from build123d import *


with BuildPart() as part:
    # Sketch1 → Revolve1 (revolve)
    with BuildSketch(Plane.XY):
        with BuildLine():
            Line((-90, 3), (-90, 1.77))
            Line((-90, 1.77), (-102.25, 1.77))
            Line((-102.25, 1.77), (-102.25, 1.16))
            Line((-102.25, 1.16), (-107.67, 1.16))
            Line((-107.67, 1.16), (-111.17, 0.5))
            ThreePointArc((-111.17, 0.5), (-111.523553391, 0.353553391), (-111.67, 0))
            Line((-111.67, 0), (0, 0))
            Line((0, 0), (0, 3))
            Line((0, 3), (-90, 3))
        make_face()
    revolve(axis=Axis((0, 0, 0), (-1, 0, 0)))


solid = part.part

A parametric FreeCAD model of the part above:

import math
import FreeCAD as App
import Part
import Sketcher
from FreeCAD import Vector

doc = App.newDocument("Part")
body = doc.addObject("PartDesign::Body", "Body")

# Sketch on XY plane
sketch1 = doc.addObject("Sketcher::SketchObject", "Sketch")
body.addObject(sketch1)
sketch1.AttachmentSupport = (doc.XY_Plane, [""])
sketch1.MapMode = "FlatFace"
sketch1.addGeometry([
    Part.LineSegment(Vector(-90, 3, 0), Vector(-90, 1.77, 0)),  # 0
    Part.LineSegment(Vector(-90, 1.77, 0), Vector(-102.25, 1.77, 0)),  # 1
    Part.LineSegment(Vector(-102.25, 1.77, 0), Vector(-102.25, 1.16, 0)),  # 2
    Part.LineSegment(Vector(-102.25, 1.16, 0), Vector(-107.67, 1.16, 0)),  # 3
    Part.LineSegment(Vector(-107.67, 1.16, 0), Vector(-111.17, 0.5, 0)),  # 4
    Part.ArcOfCircle(Part.Circle(Vector(-111.17, 0, 0), Vector(0, 0, 1), 0.5), math.radians(90), math.radians(180)),  # 5
    Part.LineSegment(Vector(-111.67, 0, 0), Vector(0, 0, 0)),  # 6
    Part.LineSegment(Vector(0, 0, 0), Vector(0, 3, 0)),  # 7
    Part.LineSegment(Vector(0, 3, 0), Vector(-90, 3, 0)),  # 8
], False)
sketch1.addConstraint([
    Sketcher.Constraint("Coincident", 0, 2, 1, 1),
    Sketcher.Constraint("Coincident", 1, 2, 2, 1),
    Sketcher.Constraint("Coincident", 2, 2, 3, 1),
    Sketcher.Constraint("Coincident", 3, 2, 4, 1),
    Sketcher.Constraint("Coincident", 4, 2, 5, 1),
    Sketcher.Constraint("Coincident", 5, 2, 6, 1),
    Sketcher.Constraint("Coincident", 6, 2, 7, 1),
    Sketcher.Constraint("Coincident", 7, 2, 8, 1),
    Sketcher.Constraint("Coincident", 8, 2, 0, 1),
    Sketcher.Constraint("Vertical", 0),
    Sketcher.Constraint("Horizontal", 1),
    Sketcher.Constraint("Vertical", 2),
    Sketcher.Constraint("Horizontal", 3),
    Sketcher.Constraint("Horizontal", 6),
    Sketcher.Constraint("Vertical", 7),
    Sketcher.Constraint("Horizontal", 8),
    Sketcher.Constraint("Coincident", 6, 2, -1, 1),
    Sketcher.Constraint("PointOnObject", 5, 3, -1),
    Sketcher.Constraint("Vertical", 5, 3, 4, 2),
    Sketcher.Constraint("Radius", 5, 0.5),
    Sketcher.Constraint("DistanceX", 8, 2, 8, 1, 90.0),
    Sketcher.Constraint("DistanceY", 7, 1, 7, 2, 3.0),
    Sketcher.Constraint("DistanceX", 5, 2, 3, 2, 4.0),
    Sketcher.Constraint("DistanceX", 1, 2, 1, 1, 12.25),
    Sketcher.Constraint("DistanceX", 3, 2, 3, 1, 5.42),
    Sketcher.Constraint("DistanceY", 0, 2, 0, 1, 1.23),
    Sketcher.Constraint("DistanceY", 2, 2, 2, 1, 0.61),
])
revolution = doc.addObject("PartDesign::Revolution", "Revolution")
body.addObject(revolution)
revolution.Profile = sketch1
revolution.ReferenceAxis = (sketch1, ["H_Axis"])
revolution.Angle = 360

doc.recompute()
